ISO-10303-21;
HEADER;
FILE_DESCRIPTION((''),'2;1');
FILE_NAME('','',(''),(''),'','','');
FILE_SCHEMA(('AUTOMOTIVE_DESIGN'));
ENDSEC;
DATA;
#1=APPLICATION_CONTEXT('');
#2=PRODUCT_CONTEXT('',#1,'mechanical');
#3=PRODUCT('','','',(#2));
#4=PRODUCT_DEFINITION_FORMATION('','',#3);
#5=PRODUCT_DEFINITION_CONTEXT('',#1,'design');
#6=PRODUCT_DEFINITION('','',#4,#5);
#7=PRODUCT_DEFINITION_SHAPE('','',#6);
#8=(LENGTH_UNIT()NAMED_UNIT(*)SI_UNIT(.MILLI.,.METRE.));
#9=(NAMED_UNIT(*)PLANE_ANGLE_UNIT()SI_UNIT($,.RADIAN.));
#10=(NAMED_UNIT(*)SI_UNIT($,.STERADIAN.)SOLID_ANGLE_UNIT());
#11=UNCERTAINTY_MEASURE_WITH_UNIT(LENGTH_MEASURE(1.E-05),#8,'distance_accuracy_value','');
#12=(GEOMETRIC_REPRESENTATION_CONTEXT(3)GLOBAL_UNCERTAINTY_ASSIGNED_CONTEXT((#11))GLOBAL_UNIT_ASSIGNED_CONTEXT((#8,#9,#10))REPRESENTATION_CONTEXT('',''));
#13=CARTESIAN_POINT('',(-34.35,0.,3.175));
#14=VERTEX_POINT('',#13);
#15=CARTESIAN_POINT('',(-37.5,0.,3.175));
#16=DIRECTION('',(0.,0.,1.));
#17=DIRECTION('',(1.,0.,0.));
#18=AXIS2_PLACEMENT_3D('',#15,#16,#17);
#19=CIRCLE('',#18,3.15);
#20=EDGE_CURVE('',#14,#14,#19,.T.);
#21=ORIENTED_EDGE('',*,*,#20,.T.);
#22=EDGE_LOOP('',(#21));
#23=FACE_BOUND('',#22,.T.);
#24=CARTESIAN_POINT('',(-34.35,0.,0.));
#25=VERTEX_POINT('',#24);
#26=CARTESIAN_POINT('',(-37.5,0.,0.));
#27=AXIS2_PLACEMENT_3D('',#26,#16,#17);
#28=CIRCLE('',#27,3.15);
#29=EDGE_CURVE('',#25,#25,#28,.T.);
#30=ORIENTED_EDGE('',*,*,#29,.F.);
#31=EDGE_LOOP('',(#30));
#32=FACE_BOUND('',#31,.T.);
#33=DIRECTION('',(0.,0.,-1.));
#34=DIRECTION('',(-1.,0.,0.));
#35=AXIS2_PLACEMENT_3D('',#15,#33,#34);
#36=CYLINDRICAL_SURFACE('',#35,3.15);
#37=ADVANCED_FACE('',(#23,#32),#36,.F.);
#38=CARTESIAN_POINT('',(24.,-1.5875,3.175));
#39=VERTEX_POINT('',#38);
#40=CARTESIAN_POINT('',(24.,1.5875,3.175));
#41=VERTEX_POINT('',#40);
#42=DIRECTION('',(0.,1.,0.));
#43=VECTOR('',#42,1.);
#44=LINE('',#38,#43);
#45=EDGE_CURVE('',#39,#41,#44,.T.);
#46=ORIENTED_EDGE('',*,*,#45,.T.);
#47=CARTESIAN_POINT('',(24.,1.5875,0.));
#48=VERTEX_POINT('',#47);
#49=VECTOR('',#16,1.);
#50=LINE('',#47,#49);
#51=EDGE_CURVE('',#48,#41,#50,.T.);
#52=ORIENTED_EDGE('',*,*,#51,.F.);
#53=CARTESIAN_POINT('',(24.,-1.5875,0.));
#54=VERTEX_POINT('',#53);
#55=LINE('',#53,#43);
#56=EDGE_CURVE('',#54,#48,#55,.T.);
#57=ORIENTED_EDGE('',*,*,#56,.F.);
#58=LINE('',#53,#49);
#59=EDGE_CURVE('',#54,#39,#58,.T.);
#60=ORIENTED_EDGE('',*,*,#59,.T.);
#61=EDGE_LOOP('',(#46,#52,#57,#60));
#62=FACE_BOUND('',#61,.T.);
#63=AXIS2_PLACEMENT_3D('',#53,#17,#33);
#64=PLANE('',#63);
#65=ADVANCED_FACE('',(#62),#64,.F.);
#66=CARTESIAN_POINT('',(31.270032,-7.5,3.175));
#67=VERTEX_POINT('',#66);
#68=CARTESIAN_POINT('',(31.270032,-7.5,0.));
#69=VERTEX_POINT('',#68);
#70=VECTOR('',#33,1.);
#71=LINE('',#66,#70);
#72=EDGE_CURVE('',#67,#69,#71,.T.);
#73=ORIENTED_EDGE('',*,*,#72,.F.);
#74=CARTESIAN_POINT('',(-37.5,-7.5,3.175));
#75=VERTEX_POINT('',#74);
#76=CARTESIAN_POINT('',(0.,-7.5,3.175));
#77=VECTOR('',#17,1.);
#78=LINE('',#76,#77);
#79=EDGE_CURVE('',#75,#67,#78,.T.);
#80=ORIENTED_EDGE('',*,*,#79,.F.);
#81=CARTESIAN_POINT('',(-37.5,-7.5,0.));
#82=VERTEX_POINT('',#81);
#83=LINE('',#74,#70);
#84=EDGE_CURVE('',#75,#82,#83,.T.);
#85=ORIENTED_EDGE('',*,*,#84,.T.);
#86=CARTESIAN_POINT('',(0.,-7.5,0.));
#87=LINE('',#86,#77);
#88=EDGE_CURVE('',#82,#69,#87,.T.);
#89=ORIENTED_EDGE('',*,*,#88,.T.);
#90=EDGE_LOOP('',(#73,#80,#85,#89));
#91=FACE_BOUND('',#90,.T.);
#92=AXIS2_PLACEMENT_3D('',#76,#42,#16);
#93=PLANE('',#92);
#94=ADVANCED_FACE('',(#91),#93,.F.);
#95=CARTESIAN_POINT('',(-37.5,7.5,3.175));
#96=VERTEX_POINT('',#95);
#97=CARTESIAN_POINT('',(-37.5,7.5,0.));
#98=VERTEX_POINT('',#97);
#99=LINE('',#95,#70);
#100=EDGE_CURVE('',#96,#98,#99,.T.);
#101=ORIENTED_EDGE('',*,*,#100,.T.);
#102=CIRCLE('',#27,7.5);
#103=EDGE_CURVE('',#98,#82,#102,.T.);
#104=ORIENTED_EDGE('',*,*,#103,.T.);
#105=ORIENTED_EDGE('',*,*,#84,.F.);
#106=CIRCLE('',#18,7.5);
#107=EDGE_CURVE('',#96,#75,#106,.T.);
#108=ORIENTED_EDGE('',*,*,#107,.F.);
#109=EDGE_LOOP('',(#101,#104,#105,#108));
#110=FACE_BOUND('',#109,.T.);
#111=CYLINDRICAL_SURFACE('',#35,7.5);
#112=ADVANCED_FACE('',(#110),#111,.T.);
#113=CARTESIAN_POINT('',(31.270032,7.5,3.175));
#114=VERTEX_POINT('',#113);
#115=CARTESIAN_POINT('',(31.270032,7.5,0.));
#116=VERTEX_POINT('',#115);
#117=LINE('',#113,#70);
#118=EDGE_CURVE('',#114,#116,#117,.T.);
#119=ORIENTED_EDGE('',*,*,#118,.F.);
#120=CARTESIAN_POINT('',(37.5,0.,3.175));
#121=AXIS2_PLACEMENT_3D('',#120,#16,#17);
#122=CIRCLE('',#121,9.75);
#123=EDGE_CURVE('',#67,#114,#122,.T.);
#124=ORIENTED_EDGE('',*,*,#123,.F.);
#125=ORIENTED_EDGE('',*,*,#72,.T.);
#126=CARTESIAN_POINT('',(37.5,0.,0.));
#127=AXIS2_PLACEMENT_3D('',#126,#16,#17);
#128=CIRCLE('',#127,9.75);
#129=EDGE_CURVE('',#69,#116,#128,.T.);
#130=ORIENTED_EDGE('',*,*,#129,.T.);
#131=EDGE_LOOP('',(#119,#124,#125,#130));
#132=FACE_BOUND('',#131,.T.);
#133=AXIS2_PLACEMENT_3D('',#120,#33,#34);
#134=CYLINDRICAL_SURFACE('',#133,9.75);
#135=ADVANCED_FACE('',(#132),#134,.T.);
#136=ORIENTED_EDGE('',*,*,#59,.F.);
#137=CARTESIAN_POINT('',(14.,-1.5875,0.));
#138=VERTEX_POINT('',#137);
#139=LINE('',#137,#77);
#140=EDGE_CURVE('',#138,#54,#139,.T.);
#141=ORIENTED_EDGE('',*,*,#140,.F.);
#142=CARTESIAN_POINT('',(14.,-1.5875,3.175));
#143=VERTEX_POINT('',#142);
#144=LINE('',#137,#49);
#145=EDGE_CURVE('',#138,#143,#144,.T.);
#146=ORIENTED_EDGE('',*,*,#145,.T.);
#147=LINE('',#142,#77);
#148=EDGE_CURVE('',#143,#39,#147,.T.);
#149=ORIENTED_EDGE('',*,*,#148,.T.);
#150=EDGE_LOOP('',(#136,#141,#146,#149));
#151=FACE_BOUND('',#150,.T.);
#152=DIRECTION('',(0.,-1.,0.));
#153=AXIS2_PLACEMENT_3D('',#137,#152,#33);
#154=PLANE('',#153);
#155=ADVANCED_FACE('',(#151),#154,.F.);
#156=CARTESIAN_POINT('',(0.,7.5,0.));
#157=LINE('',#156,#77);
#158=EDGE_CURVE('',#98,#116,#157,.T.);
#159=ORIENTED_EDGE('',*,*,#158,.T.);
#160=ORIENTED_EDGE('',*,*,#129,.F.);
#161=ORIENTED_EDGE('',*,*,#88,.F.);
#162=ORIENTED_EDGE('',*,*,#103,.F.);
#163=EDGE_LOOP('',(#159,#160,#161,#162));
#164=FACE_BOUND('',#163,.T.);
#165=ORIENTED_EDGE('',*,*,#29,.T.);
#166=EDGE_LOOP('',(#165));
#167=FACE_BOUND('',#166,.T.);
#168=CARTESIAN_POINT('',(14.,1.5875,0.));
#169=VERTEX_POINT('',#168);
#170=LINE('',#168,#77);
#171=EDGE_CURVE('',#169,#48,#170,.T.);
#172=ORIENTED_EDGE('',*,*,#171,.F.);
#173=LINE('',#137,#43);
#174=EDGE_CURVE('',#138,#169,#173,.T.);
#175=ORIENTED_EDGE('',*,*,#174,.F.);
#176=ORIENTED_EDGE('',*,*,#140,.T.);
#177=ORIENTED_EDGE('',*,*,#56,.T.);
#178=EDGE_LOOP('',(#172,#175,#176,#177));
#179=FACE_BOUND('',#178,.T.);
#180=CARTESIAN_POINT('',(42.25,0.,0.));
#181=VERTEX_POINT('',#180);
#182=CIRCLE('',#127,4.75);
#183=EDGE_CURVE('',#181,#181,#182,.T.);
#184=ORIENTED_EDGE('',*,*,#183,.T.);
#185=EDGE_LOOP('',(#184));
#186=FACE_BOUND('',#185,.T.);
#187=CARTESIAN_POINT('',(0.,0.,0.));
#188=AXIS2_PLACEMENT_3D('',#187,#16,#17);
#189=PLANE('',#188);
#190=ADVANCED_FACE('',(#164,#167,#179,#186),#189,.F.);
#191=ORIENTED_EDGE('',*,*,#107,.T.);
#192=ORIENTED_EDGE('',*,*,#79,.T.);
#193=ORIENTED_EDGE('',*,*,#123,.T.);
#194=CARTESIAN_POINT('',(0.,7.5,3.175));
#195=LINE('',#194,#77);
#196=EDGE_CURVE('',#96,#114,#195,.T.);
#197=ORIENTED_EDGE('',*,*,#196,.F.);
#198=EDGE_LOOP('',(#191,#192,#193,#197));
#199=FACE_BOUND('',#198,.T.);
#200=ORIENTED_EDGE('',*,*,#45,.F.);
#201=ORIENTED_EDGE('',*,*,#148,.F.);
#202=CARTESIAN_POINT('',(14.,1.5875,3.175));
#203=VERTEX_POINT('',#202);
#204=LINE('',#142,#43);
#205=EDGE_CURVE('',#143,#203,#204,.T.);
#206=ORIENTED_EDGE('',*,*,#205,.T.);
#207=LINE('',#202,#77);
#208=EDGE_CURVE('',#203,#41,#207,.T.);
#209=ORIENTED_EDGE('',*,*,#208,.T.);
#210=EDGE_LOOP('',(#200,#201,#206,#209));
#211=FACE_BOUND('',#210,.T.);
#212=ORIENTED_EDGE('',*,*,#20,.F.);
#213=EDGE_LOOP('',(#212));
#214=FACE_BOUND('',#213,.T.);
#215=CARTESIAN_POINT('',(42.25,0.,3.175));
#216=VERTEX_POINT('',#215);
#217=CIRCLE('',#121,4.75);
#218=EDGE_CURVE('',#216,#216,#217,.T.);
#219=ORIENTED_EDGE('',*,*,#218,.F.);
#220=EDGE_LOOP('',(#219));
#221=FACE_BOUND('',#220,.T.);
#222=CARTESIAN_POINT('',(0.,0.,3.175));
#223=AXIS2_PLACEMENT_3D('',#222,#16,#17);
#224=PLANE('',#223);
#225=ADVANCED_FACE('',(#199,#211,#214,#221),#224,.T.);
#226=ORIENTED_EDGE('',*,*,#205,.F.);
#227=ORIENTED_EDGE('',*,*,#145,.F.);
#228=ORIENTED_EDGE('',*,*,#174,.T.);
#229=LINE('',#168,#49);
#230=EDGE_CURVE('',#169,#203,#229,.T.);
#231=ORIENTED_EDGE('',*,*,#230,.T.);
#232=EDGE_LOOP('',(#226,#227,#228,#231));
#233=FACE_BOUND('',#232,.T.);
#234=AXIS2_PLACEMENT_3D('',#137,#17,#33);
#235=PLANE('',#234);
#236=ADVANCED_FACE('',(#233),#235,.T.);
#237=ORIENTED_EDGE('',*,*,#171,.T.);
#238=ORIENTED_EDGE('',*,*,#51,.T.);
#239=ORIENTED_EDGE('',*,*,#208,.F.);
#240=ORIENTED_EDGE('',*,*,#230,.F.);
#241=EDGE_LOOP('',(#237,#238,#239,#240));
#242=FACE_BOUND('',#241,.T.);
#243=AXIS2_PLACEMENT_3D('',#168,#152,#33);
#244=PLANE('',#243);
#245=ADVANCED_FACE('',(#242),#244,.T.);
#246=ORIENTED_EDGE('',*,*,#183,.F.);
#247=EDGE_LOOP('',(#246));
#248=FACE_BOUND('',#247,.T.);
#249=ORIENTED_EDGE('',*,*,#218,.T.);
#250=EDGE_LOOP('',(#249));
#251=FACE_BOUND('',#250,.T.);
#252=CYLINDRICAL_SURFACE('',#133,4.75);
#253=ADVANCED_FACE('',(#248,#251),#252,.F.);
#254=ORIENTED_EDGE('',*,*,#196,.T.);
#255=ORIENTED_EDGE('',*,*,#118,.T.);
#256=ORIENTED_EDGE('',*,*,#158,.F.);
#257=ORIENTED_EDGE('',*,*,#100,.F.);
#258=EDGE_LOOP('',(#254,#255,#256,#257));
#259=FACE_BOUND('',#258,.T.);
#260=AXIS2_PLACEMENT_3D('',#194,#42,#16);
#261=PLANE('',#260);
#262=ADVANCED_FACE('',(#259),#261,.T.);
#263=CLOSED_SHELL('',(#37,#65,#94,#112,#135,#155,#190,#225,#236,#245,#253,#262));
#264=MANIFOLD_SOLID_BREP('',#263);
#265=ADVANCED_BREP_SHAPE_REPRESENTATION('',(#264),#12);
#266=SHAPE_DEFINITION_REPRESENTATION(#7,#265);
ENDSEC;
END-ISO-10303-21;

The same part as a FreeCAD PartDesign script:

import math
import FreeCAD as App
import Part
import Sketcher
Q = App.Units.Quantity


def add_polygon(sketch, points):
    """Adds a closed chain of lines whose ends are joined by coincident constraints."""
    first, n = sketch.GeometryCount, len(points)
    for a, b in zip(points, points[1:] + points[:1]):
        sketch.addGeometry(Part.LineSegment(App.Vector(*a, 0), App.Vector(*b, 0)), False)
    for i in range(n):
        sketch.addConstraint(Sketcher.Constraint("Coincident", first + i, 2, first + (i + 1) % n, 1))

doc = App.newDocument("Part")
body = doc.addObject("PartDesign::Body", "Body")

sketch1 = body.newObject("Sketcher::SketchObject", "Sketch")
sketch1.AttachmentSupport = (doc.getObject("XY_Plane"), [""])
sketch1.MapMode = "FlatFace"
sketch1.addGeometry([
    Part.LineSegment(App.Vector(-37.5, -7.5, 0), App.Vector(31.270032, -7.5, 0)),
    Part.ArcOfCircle(Part.Circle(App.Vector(37.5, 0, 0), App.Vector(0, 0, 1), 9.75), math.radians(-129.715137), math.radians(129.715137)),
    Part.LineSegment(App.Vector(31.270032, 7.5, 0), App.Vector(-37.5, 7.5, 0)),
    Part.ArcOfCircle(Part.Circle(App.Vector(-37.5, 0, 0), App.Vector(0, 0, 1), 7.5), math.radians(90), math.radians(270)),
    Part.Circle(App.Vector(-37.5, 0, 0), App.Vector(0, 0, 1), 3.15),
    Part.Circle(App.Vector(37.5, 0, 0), App.Vector(0, 0, 1), 4.75),
], False)
sketch1.addConstraint([
    Sketcher.Constraint("Coincident", 0, 2, 1, 1),
    Sketcher.Constraint("Coincident", 1, 2, 2, 1),
    Sketcher.Constraint("Tangent", 2, 2, 3, 1),
    Sketcher.Constraint("Tangent", 3, 2, 0, 1),
    Sketcher.Constraint("Horizontal", 0),
    Sketcher.Constraint("Horizontal", 2),
    Sketcher.Constraint("Coincident", 4, 3, 3, 3),
    Sketcher.Constraint("Coincident", 5, 3, 1, 3),
    Sketcher.Constraint("Symmetric", 1, 3, 3, 3, -1, 1),
    Sketcher.Constraint("PointOnObject", 1, 3, -1),
    Sketcher.Constraint("Diameter", 4, Q("6.3 mm")),
    Sketcher.Constraint("Diameter", 5, Q("9.5 mm")),
    Sketcher.Constraint("Radius", 3, Q("7.5 mm")),
    Sketcher.Constraint("Radius", 1, Q("9.75 mm")),
    Sketcher.Constraint("DistanceX", 3, 3, 1, 3, Q("75 mm")),
])
pad1 = body.newObject("PartDesign::Pad", "Pad")
pad1.Profile = sketch1
pad1.Length = 3.175

sketch2 = body.newObject("Sketcher::SketchObject", "Sketch001")
sketch2.AttachmentSupport = (doc.getObject("XY_Plane"), [""])
sketch2.MapMode = "FlatFace"
sketch2.AttachmentOffset = App.Placement(App.Vector(0, 0, 3.175), App.Rotation())
add_polygon(sketch2, [(-25, 1.5875), (-25, -1.5875), (-10, -1.5875), (-10, 1.5875)])
add_polygon(sketch2, [(14, 1.5875), (14, -1.5875), (24, -1.5875), (24, 1.5875)])
sketch2.addConstraint([
    Sketcher.Constraint("Vertical", 0),
    Sketcher.Constraint("Horizontal", 1),
    Sketcher.Constraint("Vertical", 2),
    Sketcher.Constraint("Horizontal", 3),
    Sketcher.Constraint("Vertical", 4),
    Sketcher.Constraint("Horizontal", 5),
    Sketcher.Constraint("Vertical", 6),
    Sketcher.Constraint("Horizontal", 7),
    Sketcher.Constraint("Horizontal", 1, 2, 4, 2),
    Sketcher.Constraint("Horizontal", 3, 2, 6, 2),
    Sketcher.Constraint("DistanceX", 1, 1, 1, 2, Q("15 mm")),
    Sketcher.Constraint("DistanceX", 5, 1, 5, 2, Q("10 mm")),
    Sketcher.Constraint("DistanceX", 0, 2, -1, 1, Q("25 mm")),
    Sketcher.Constraint("DistanceX", -1, 1, 4, 2, Q("14 mm")),
    Sketcher.Constraint("DistanceY", 0, 2, 0, 1, Q("3.175 mm")),
    Sketcher.Constraint("DistanceY", 0, 2, -1, 1, Q("1.5875 mm")),
])
pocket1 = body.newObject("PartDesign::Pocket", "Pocket")
pocket1.Profile = sketch2
pocket1.Type = "ThroughAll"

sketch3 = body.newObject("Sketcher::SketchObject", "Sketch002")
sketch3.AttachmentSupport = (doc.getObject("XY_Plane"), [""])
sketch3.MapMode = "FlatFace"
sketch3.AttachmentOffset = App.Placement(App.Vector(0, 0, 3.175), App.Rotation())
add_polygon(sketch3, [(-27.461405, 3.630491), (-27.461405, -3.630491), (-7.447161, -3.630491), (-7.447161, 3.630491)])
sketch3.addConstraint([
    Sketcher.Constraint("Vertical", 0),
    Sketcher.Constraint("Horizontal", 1),
    Sketcher.Constraint("Vertical", 2),
    Sketcher.Constraint("Horizontal", 3),
    Sketcher.Constraint("DistanceY", 0, 2, 0, 1, Q("7.260982 mm")),
    Sketcher.Constraint("DistanceX", 1, 1, 1, 2, Q("20.014244 mm")),
    Sketcher.Constraint("DistanceY", 0, 2, -1, 1, Q("3.630491 mm")),
    Sketcher.Constraint("DistanceX", 1, 2, -1, 1, Q("7.447161 mm")),
])
pad2 = body.newObject("PartDesign::Pad", "Pad001")
pad2.Profile = sketch3
pad2.Length = 3.175
pad2.Reversed = True

doc.recompute()
